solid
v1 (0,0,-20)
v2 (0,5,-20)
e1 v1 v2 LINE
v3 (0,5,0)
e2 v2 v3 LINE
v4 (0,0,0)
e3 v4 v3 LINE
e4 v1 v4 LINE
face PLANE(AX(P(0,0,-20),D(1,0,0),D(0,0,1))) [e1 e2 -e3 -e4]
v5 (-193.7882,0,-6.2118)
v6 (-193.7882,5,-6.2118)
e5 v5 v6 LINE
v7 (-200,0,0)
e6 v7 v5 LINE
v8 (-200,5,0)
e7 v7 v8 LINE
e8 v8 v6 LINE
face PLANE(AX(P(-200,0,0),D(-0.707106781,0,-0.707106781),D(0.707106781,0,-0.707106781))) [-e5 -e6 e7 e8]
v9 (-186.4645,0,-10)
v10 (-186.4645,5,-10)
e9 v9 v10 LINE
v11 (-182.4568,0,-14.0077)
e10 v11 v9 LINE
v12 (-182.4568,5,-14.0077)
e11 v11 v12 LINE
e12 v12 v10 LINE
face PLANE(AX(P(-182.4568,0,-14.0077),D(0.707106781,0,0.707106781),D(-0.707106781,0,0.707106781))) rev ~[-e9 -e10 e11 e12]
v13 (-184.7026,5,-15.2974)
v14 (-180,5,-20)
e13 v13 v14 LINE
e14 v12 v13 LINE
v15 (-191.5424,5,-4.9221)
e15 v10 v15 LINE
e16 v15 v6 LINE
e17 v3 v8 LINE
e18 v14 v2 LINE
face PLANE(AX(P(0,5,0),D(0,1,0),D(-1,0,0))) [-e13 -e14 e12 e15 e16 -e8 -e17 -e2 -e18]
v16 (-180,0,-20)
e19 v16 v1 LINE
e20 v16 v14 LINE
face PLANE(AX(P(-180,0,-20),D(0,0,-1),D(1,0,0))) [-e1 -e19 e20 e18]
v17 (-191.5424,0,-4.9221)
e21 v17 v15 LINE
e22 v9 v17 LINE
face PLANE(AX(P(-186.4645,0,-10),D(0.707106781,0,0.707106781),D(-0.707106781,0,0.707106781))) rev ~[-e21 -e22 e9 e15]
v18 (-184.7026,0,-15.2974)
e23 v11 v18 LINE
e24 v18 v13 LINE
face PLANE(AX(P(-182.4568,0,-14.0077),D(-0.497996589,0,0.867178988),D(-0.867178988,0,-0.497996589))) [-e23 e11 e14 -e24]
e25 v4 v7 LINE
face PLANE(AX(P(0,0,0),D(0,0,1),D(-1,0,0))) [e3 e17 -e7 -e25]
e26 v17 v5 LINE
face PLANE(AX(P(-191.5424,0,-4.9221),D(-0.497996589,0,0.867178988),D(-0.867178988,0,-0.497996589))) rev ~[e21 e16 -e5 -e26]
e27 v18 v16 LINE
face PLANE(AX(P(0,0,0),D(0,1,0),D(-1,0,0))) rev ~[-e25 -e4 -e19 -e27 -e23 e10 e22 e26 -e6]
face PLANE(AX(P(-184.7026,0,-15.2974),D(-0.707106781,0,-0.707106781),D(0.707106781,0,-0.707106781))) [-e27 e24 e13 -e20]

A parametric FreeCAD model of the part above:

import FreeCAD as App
import Part
import Sketcher
from FreeCAD import Vector
Q = App.Units.Quantity

doc = App.newDocument("Part")
params = doc.addObject("Spreadsheet::Sheet", "Params")
for row, (alias, value) in enumerate([
    ("sketch1_width", "200 mm"),
    ("sketch1_height", "20 mm"),
    ("pad1_length", "5 mm"),
], start=1):
    params.set(f"A{row}", alias)
    params.set(f"B{row}", "=" + value)
    params.setAlias(f"B{row}", alias)

body = doc.addObject("PartDesign::Body", "Body")

# Sketch on XZ plane
sketch1 = body.newObject("Sketcher::SketchObject", "Sketch")
sketch1.AttachmentSupport = (doc.getObject("XZ_Plane"), [""])
sketch1.MapMode = "FlatFace"
sketch1.addGeometry(Part.LineSegment(Vector(-200, 0, 0), Vector(0, 0, 0)), False)
sketch1.addGeometry(Part.LineSegment(Vector(0, 0, 0), Vector(0, -20, 0)), False)
sketch1.addGeometry(Part.LineSegment(Vector(0, -20, 0), Vector(-180, -20, 0)), False)
sketch1.addGeometry(Part.LineSegment(Vector(-180, -20, 0), Vector(-184.7, -15.3, 0)), False)
sketch1.addGeometry(Part.LineSegment(Vector(-184.7, -15.3, 0), Vector(-182.5, -14, 0)), False)
sketch1.addGeometry(Part.LineSegment(Vector(-182.5, -14, 0), Vector(-191.5, -4.9, 0)), False)
sketch1.addGeometry(Part.LineSegment(Vector(-191.5, -4.9, 0), Vector(-193.8, -6.2, 0)), False)
sketch1.addGeometry(Part.LineSegment(Vector(-193.8, -6.2, 0), Vector(-200, 0, 0)), False)
sketch1.addConstraint(Sketcher.Constraint("Coincident", 0, 2, 1, 1))
sketch1.addConstraint(Sketcher.Constraint("Coincident", 1, 2, 2, 1))
sketch1.addConstraint(Sketcher.Constraint("Coincident", 2, 2, 3, 1))
sketch1.addConstraint(Sketcher.Constraint("Coincident", 3, 2, 4, 1))
sketch1.addConstraint(Sketcher.Constraint("Coincident", 4, 2, 5, 1))
sketch1.addConstraint(Sketcher.Constraint("Coincident", 5, 2, 6, 1))
sketch1.addConstraint(Sketcher.Constraint("Coincident", 6, 2, 7, 1))
sketch1.addConstraint(Sketcher.Constraint("Coincident", 7, 2, 0, 1))
sketch1.addConstraint(Sketcher.Constraint("Horizontal", 0))
sketch1.addConstraint(Sketcher.Constraint("Vertical", 1))
sketch1.addConstraint(Sketcher.Constraint("Horizontal", 2))
sketch1.addConstraint(Sketcher.Constraint("Coincident", 0, 2, -1, 1))
sketch1.addConstraint(Sketcher.Constraint("Parallel", 3, 5))
sketch1.addConstraint(Sketcher.Constraint("Parallel", 4, 6))
sketch1.addConstraint(Sketcher.Constraint("Parallel", 5, 7))
sketch1.addConstraint(Sketcher.Constraint("Equal", 4, 6))
sketch1.addConstraint(Sketcher.Constraint("DistanceX", 0, 1, 0, 2, Q("200 mm")))
sketch1.addConstraint(Sketcher.Constraint("DistanceY", 1, 2, 1, 1, Q("20 mm")))
sketch1.addConstraint(Sketcher.Constraint("DistanceX", 7, 2, 2, 2, Q("20 mm")))
sketch1.addConstraint(Sketcher.Constraint("Distance", 5, Q("12.849 mm")))
sketch1.addConstraint(Sketcher.Constraint("DistanceY", 5, 2, -1, 1, Q("4.922 mm")))
sketch1.addConstraint(Sketcher.Constraint("DistanceY", 4, 2, 6, 2, Q("7.796 mm")))
sketch1.addConstraint(Sketcher.Constraint("Distance", 4, Q("2.5898 mm")))
sketch1.setExpression("Constraints[16]", "Params.sketch1_width")
sketch1.setExpression("Constraints[17]", "Params.sketch1_height")
pad1 = body.newObject("PartDesign::Pad", "Pad")
pad1.Profile = sketch1
pad1.setExpression("Length", "Params.pad1_length")
pad1.Reversed = True

doc.recompute()
